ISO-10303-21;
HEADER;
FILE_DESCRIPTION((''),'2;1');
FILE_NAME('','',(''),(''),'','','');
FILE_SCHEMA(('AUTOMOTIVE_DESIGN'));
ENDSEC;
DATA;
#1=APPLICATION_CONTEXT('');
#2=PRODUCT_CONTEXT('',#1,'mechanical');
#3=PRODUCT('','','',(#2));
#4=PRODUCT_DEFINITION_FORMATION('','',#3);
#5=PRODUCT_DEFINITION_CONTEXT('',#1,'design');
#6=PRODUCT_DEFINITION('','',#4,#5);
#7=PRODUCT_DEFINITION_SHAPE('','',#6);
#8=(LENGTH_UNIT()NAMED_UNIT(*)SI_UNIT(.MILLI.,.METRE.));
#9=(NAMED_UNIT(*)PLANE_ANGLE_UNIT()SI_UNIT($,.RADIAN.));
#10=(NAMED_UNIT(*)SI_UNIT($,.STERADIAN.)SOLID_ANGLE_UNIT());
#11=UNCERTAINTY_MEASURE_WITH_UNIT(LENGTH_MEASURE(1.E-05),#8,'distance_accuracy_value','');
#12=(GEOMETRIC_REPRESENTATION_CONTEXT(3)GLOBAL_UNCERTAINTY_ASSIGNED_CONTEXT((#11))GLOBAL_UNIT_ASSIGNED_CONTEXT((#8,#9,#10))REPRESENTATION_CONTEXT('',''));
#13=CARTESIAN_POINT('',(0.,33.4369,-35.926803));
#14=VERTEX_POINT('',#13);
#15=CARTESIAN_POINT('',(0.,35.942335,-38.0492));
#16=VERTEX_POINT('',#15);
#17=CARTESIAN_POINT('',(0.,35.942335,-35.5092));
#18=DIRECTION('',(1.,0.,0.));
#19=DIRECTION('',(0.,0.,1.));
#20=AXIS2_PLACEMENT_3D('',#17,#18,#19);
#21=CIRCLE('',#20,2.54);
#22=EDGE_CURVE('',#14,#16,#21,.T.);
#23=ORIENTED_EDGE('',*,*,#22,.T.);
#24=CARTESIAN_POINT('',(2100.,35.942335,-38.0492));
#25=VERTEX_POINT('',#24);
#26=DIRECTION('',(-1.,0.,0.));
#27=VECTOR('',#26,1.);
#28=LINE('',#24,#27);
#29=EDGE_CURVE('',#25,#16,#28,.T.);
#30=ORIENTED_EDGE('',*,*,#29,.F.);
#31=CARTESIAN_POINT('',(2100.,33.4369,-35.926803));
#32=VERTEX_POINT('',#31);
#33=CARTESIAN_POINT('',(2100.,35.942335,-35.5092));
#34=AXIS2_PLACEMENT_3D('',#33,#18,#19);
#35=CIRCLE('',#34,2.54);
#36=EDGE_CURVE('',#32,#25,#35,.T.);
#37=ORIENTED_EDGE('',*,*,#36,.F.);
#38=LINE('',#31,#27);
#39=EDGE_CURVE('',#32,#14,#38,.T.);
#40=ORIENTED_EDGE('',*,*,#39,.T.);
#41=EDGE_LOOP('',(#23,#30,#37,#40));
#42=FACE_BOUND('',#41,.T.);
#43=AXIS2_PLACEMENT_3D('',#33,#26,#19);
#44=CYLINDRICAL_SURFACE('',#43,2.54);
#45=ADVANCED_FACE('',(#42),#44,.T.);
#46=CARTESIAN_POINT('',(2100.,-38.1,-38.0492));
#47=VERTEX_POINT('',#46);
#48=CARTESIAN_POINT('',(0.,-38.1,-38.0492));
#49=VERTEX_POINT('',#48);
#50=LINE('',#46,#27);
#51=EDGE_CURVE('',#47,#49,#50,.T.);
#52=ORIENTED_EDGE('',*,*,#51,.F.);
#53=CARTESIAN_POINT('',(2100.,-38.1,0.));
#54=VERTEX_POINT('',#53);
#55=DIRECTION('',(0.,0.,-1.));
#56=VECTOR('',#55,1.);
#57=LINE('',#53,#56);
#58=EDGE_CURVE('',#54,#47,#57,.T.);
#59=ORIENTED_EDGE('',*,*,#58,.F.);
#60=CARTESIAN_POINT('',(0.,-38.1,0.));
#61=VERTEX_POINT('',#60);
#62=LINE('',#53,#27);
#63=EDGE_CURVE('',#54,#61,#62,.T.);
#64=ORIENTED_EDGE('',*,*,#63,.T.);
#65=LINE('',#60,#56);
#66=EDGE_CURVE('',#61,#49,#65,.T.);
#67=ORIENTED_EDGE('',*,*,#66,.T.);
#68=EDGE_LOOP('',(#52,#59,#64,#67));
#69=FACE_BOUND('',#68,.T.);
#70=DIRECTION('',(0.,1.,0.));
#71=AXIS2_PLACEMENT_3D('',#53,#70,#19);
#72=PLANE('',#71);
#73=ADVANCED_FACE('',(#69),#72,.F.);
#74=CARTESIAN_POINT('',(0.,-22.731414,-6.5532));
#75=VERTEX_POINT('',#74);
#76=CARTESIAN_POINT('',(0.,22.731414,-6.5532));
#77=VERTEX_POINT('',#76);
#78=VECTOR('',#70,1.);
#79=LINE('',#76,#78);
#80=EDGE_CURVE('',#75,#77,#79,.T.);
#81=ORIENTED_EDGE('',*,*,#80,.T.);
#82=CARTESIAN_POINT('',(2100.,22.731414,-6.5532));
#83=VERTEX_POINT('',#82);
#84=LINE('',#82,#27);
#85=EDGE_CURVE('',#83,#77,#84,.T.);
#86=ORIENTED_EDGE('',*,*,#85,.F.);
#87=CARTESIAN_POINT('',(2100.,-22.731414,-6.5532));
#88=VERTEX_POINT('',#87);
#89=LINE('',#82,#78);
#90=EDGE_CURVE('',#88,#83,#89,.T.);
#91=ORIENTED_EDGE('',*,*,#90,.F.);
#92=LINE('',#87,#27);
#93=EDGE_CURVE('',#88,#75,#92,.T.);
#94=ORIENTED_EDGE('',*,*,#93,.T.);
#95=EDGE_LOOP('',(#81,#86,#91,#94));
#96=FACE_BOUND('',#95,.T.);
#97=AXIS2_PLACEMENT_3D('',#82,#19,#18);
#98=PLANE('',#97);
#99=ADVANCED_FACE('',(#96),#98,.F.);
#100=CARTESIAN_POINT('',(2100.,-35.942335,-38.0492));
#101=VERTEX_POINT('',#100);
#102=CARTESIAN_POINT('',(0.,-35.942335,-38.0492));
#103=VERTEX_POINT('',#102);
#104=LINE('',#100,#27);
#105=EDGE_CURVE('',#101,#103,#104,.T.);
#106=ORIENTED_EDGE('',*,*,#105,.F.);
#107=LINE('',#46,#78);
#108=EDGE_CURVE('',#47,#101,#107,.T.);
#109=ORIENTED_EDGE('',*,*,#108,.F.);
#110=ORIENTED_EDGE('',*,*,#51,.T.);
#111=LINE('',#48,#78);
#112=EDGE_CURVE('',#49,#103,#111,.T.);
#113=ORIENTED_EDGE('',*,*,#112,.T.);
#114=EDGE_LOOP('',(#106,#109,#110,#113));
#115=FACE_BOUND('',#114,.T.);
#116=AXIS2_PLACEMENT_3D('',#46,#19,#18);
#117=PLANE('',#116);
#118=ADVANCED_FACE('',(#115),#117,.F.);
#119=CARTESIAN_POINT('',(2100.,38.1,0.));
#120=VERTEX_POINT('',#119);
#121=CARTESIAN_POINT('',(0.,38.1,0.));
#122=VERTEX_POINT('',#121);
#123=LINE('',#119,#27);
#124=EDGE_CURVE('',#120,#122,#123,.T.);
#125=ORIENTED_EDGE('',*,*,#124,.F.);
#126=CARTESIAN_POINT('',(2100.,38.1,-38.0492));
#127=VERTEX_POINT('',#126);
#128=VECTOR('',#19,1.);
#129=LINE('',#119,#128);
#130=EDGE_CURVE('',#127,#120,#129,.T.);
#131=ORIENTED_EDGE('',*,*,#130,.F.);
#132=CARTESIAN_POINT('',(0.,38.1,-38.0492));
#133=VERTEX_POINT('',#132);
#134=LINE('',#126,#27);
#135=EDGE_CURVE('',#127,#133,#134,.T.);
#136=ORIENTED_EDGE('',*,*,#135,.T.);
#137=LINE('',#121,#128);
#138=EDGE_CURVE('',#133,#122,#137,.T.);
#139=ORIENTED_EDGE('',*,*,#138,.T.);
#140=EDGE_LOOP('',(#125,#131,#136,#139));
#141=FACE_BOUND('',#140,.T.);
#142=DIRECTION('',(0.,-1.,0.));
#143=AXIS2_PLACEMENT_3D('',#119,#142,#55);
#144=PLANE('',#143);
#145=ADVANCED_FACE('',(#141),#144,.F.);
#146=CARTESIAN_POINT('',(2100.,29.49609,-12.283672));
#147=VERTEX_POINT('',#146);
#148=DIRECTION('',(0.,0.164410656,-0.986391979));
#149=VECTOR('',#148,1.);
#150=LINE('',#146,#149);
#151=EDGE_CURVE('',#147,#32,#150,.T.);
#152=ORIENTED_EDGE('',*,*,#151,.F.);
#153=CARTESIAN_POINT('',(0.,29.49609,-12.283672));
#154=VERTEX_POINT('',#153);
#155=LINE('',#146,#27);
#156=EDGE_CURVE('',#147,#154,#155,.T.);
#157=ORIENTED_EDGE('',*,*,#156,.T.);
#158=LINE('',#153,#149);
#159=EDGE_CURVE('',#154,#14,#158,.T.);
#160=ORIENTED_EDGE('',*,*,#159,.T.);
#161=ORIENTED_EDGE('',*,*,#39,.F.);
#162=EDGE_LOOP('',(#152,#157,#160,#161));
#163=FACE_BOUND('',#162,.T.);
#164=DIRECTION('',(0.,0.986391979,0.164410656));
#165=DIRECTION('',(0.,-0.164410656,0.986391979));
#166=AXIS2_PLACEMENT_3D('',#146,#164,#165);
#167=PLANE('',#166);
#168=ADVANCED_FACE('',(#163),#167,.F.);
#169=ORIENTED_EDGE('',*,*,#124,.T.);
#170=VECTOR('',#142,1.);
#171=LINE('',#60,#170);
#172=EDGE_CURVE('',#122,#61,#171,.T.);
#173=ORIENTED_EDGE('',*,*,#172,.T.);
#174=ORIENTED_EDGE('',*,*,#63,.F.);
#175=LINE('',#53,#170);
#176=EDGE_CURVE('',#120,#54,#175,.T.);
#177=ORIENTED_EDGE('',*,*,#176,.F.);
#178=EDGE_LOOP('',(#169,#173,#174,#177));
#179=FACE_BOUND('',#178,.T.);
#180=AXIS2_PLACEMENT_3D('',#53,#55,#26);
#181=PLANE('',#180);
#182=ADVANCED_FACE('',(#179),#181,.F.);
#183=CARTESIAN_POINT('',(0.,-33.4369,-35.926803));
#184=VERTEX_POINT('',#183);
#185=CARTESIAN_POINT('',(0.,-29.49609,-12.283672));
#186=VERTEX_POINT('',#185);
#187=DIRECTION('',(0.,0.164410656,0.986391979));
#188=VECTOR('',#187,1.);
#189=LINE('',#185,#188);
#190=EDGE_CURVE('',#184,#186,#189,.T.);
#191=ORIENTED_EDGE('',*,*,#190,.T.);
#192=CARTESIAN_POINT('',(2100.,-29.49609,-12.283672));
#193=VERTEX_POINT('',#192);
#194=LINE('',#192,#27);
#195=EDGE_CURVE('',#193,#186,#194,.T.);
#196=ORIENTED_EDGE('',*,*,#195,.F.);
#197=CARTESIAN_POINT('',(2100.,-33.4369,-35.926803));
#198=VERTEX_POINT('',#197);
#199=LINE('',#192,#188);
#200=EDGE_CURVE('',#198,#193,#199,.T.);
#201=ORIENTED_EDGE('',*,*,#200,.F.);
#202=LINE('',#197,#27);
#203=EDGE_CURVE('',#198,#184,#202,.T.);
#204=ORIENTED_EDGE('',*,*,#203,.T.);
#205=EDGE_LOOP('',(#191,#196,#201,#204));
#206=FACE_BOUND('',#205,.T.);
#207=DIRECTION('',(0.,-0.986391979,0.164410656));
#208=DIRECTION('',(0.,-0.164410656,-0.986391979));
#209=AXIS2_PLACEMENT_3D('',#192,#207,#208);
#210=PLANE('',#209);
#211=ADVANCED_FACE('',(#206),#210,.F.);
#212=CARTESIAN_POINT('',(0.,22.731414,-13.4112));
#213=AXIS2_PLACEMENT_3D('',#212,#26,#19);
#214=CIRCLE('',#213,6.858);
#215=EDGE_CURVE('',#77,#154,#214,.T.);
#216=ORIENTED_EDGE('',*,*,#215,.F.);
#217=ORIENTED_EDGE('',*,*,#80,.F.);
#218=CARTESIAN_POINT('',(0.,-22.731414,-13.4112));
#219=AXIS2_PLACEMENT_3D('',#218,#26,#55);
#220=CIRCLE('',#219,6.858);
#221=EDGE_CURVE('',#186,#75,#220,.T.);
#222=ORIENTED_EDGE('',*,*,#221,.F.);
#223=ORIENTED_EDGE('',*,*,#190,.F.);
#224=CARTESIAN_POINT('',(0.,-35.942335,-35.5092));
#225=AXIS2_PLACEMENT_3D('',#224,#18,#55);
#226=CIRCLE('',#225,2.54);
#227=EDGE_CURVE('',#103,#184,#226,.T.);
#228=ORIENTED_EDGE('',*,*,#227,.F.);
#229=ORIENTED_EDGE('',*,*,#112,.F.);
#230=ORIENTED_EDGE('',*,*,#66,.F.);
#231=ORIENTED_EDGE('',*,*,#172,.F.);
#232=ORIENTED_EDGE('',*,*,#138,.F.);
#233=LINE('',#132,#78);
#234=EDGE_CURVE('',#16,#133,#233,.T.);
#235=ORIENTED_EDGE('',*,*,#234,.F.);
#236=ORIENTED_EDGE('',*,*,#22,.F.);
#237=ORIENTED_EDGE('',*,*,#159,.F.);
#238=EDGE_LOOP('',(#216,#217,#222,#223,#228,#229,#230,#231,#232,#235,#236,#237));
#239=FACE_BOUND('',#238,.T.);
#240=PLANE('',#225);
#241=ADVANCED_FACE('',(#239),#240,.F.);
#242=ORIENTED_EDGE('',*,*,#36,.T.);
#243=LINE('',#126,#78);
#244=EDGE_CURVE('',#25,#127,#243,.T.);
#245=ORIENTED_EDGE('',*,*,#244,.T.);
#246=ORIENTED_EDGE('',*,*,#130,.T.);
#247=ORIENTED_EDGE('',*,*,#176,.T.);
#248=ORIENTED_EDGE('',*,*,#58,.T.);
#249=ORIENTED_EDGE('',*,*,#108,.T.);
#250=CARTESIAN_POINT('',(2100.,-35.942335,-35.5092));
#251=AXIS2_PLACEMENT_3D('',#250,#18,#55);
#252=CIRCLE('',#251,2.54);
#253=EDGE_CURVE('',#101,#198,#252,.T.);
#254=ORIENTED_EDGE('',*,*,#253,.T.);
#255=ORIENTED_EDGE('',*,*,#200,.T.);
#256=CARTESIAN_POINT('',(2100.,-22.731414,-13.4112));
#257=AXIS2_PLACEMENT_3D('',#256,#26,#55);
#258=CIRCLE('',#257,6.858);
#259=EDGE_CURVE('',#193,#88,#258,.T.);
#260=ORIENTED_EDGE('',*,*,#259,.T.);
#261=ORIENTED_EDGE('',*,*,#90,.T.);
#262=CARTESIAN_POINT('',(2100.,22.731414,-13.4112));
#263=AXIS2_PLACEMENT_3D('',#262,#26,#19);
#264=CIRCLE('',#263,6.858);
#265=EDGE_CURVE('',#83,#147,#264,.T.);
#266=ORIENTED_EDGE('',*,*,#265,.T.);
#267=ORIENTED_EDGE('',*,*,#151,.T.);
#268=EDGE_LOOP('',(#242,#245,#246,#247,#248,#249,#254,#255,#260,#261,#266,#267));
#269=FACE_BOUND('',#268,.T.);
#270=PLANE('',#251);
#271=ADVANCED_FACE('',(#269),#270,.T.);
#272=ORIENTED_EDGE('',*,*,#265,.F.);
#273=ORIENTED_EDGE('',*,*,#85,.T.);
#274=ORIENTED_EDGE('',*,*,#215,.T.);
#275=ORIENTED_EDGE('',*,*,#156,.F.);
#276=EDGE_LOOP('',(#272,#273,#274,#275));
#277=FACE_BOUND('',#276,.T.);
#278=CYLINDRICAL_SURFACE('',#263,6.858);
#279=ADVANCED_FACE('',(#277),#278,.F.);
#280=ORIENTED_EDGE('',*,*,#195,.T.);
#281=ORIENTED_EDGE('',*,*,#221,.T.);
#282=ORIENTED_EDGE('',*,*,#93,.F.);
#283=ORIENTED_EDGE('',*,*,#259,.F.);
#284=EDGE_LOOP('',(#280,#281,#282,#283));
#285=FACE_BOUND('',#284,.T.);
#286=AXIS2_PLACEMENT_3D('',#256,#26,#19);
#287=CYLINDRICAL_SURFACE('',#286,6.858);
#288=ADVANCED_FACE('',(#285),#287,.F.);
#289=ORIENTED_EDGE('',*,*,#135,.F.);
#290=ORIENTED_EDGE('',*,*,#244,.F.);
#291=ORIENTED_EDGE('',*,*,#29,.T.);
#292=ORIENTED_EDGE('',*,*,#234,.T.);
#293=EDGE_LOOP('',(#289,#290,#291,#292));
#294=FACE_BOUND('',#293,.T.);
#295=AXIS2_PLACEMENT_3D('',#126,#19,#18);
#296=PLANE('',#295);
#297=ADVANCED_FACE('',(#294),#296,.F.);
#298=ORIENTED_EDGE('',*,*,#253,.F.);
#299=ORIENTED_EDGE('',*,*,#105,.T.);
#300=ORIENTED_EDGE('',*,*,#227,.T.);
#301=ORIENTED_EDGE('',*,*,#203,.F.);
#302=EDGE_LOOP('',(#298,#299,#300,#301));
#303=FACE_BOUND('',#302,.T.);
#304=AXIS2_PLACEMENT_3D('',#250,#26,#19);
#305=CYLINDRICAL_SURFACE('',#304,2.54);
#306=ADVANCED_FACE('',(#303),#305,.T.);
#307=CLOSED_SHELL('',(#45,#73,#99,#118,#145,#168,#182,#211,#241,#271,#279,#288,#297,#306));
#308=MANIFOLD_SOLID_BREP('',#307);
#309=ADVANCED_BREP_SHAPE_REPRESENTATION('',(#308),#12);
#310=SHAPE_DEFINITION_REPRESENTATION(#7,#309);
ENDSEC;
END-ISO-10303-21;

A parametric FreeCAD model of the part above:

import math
import FreeCAD as App
import Part
import Sketcher
Q = App.Units.Quantity

doc = App.newDocument("Part")
body = doc.addObject("PartDesign::Body", "Body")

sketch1 = body.newObject("Sketcher::SketchObject", "Sketch")
sketch1.AttachmentSupport = (doc.getObject("YZ_Plane"), [""])
sketch1.MapMode = "FlatFace"
sketch1.addGeometry([
    Part.LineSegment(App.Vector(38.1, 0, 0), App.Vector(-38.1, 0, 0)),
    Part.LineSegment(App.Vector(-38.1, 0, 0), App.Vector(-38.1, -38.0492, 0)),
    Part.LineSegment(App.Vector(-38.1, -38.0492, 0), App.Vector(-35.942335, -38.0492, 0)),
    Part.ArcOfCircle(Part.Circle(App.Vector(-35.942335, -35.5092, 0), App.Vector(0, 0, 1), 2.54), math.radians(-90), math.radians(-9.463)),
    Part.LineSegment(App.Vector(-33.4369, -35.926803, 0), App.Vector(-29.49609, -12.283672, 0)),
    Part.ArcOfCircle(Part.Circle(App.Vector(-22.731414, -13.4112, 0), App.Vector(0, 0, 1), 6.858), math.radians(90), math.radians(170.537)),
    Part.LineSegment(App.Vector(-22.731414, -6.5532, 0), App.Vector(22.731414, -6.5532, 0)),
    Part.ArcOfCircle(Part.Circle(App.Vector(22.731414, -13.4112, 0), App.Vector(0, 0, 1), 6.858), math.radians(9.463), math.radians(90)),
    Part.LineSegment(App.Vector(29.49609, -12.283672, 0), App.Vector(33.4369, -35.926803, 0)),
    Part.ArcOfCircle(Part.Circle(App.Vector(35.942335, -35.5092, 0), App.Vector(0, 0, 1), 2.54), math.radians(-170.537), math.radians(-90)),
    Part.LineSegment(App.Vector(35.942335, -38.0492, 0), App.Vector(38.1, -38.0492, 0)),
    Part.LineSegment(App.Vector(38.1, -38.0492, 0), App.Vector(38.1, 0, 0)),
], False)
sketch1.addConstraint([
    Sketcher.Constraint("Coincident", 0, 2, 1, 1),
    Sketcher.Constraint("Coincident", 1, 2, 2, 1),
    Sketcher.Constraint("Coincident", 2, 2, 3, 1),
    Sketcher.Constraint("Coincident", 3, 2, 4, 1),
    Sketcher.Constraint("Coincident", 4, 2, 5, 2),
    Sketcher.Constraint("Coincident", 5, 1, 6, 1),
    Sketcher.Constraint("Coincident", 6, 2, 7, 2),
    Sketcher.Constraint("Coincident", 7, 1, 8, 1),
    Sketcher.Constraint("Coincident", 8, 2, 9, 1),
    Sketcher.Constraint("Coincident", 9, 2, 10, 1),
    Sketcher.Constraint("Coincident", 10, 2, 11, 1),
    Sketcher.Constraint("Coincident", 11, 2, 0, 1),
    Sketcher.Constraint("Horizontal", 0),
    Sketcher.Constraint("Vertical", 1),
    Sketcher.Constraint("Horizontal", 2),
    Sketcher.Constraint("Horizontal", 6),
    Sketcher.Constraint("Horizontal", 10),
    Sketcher.Constraint("Vertical", 11),
    Sketcher.Constraint("PointOnObject", 0, 2, -1),
    Sketcher.Constraint("Radius", 3, Q("0.1 in")),
    Sketcher.Constraint("Radius", 9, Q("0.1 in")),
    Sketcher.Constraint("DistanceX", 0, 2, 0, 1, Q("3 in")),
    Sketcher.Constraint("Radius", 5, Q("0.27 in")),
    Sketcher.Constraint("Radius", 7, Q("0.27 in")),
    Sketcher.Constraint("DistanceX", 0, 2, -1, 1, Q("1.5 in")),
    Sketcher.Constraint("DistanceY", 1, 2, 9, 3, Q("0.1 in")),
    Sketcher.Constraint("DistanceY", 1, 2, 1, 1, Q("1.498 in")),
    Sketcher.Constraint("DistanceY", 3, 3, 5, 3, Q("0.87 in")),
    Sketcher.Constraint("DistanceX", 3, 2, -1, 1, Q("33.4369 mm")),
    Sketcher.Constraint("DistanceX", -1, 1, 8, 2, Q("33.4369 mm")),
    Sketcher.Constraint("DistanceX", 2, 1, 2, 2, Q("2.157665 mm")),
    Sketcher.Constraint("DistanceX", 6, 1, 6, 2, Q("45.462828 mm")),
    Sketcher.Constraint("DistanceX", 10, 1, 10, 2, Q("2.157665 mm")),
    Sketcher.Constraint("DistanceX", 4, 2, -1, 1, Q("29.49609 mm")),
    Sketcher.Constraint("DistanceY", 4, 2, -1, 1, Q("12.283672 mm")),
    Sketcher.Constraint("DistanceX", -1, 1, 7, 1, Q("29.49609 mm")),
    Sketcher.Constraint("DistanceY", 7, 1, -1, 1, Q("12.283672 mm")),
    Sketcher.Constraint("DistanceX", 3, 3, 5, 3, Q("13.210921 mm")),
    Sketcher.Constraint("DistanceX", 7, 3, 9, 3, Q("13.210921 mm")),
    Sketcher.Constraint("DistanceX", 3, 3, 5, 1, Q("13.210921 mm")),
])
pad1 = body.newObject("PartDesign::Pad", "Pad")
pad1.Profile = sketch1
pad1.Length = 2100

doc.recompute()
